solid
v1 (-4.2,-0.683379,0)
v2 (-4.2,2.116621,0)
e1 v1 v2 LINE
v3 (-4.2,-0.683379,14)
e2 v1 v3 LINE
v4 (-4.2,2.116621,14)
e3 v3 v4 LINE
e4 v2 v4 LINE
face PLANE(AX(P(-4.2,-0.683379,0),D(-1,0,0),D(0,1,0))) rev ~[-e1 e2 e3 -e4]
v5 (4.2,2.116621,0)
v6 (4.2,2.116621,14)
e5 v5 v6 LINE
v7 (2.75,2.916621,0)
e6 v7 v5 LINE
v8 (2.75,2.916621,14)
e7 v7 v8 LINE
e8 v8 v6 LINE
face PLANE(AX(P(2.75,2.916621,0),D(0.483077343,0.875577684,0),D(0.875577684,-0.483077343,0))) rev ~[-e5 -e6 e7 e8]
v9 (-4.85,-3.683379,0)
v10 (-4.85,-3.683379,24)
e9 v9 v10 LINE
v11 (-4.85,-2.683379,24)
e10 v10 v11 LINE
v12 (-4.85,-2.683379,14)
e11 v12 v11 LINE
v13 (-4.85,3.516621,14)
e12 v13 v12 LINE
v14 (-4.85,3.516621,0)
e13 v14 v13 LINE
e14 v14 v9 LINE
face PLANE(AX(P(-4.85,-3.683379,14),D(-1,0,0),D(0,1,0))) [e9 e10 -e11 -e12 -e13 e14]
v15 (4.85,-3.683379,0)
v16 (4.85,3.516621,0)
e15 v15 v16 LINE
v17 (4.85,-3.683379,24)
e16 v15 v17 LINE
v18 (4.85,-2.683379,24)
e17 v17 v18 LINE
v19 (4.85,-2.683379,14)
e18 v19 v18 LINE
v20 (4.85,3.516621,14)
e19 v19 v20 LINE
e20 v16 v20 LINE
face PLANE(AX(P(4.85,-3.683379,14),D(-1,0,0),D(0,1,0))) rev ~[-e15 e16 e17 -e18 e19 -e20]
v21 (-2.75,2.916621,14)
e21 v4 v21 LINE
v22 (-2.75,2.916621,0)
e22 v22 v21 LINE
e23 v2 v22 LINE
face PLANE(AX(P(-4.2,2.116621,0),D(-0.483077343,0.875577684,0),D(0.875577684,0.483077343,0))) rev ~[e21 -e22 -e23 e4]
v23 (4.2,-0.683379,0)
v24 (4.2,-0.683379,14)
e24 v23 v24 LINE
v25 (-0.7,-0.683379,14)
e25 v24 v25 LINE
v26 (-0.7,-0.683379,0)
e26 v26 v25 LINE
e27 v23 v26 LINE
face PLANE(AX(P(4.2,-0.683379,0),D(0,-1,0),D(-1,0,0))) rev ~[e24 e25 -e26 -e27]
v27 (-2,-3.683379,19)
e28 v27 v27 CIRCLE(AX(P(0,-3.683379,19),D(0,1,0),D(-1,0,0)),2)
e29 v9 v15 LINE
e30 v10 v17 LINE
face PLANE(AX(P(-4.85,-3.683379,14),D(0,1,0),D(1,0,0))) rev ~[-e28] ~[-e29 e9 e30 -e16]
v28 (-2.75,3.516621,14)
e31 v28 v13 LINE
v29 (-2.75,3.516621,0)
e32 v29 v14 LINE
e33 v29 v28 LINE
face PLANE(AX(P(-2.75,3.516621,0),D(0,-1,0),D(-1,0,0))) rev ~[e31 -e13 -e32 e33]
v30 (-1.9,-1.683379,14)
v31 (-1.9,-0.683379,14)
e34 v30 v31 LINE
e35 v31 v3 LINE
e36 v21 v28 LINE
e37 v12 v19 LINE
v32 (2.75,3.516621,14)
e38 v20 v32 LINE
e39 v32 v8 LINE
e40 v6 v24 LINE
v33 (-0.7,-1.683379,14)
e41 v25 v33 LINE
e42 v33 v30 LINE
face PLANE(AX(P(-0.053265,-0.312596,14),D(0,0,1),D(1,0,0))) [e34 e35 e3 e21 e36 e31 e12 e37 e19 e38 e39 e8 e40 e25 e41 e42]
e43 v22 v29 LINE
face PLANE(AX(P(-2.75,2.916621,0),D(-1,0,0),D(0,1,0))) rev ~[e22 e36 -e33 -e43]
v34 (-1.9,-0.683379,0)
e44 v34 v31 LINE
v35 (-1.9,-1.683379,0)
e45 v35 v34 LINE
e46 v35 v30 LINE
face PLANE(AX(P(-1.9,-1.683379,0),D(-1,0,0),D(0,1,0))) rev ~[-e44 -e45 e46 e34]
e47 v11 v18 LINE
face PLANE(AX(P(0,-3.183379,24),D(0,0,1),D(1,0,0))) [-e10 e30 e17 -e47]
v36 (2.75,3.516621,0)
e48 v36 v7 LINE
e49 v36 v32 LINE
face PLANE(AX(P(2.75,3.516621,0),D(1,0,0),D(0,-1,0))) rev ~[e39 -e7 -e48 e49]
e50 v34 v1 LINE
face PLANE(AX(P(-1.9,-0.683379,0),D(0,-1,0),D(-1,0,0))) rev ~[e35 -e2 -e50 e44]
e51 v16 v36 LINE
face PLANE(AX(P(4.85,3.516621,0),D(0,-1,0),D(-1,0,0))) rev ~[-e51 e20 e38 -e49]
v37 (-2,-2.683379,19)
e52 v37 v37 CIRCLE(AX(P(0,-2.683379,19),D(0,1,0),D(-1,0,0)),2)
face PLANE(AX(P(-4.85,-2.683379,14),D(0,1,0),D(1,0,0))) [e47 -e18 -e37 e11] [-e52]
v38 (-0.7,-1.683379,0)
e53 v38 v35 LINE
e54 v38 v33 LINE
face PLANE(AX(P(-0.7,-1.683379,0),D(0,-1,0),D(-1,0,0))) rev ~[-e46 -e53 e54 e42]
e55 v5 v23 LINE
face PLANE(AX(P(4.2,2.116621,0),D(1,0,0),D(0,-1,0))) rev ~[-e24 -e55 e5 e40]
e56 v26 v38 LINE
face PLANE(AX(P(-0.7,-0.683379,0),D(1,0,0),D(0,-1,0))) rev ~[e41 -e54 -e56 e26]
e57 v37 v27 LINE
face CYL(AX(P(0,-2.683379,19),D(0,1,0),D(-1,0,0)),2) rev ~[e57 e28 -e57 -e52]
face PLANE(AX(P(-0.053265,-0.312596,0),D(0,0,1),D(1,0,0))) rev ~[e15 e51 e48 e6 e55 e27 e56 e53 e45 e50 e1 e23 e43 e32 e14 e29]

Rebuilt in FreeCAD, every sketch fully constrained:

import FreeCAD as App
import Part
import Sketcher

V = App.Vector

doc = App.newDocument("Part")
body = doc.addObject("PartDesign::Body", "Body")

# Sketch on XY plane
sketch1 = body.newObject("Sketcher::SketchObject", "Sketch")
sketch1.AttachmentSupport = (doc.getObject("XY_Plane"), [""])
sketch1.MapMode = "FlatFace"
sketch1.addGeometry(Part.LineSegment(V(-2.8, 3.5, 0), V(-4.8, 3.5, 0)), False)
sketch1.addGeometry(Part.LineSegment(V(-4.8, 3.5, 0), V(-4.8, -3.7, 0)), False)
sketch1.addGeometry(Part.LineSegment(V(-4.8, -3.7, 0), V(4.8, -3.7, 0)), False)
sketch1.addGeometry(Part.LineSegment(V(4.8, -3.7, 0), V(4.8, 3.5, 0)), False)
sketch1.addGeometry(Part.LineSegment(V(4.8, 3.5, 0), V(2.8, 3.5, 0)), False)
sketch1.addGeometry(Part.LineSegment(V(2.8, 3.5, 0), V(2.8, 2.9, 0)), False)
sketch1.addGeometry(Part.LineSegment(V(2.8, 2.9, 0), V(4.2, 2.1, 0)), False)
sketch1.addGeometry(Part.LineSegment(V(4.2, 2.1, 0), V(4.2, -0.7, 0)), False)
sketch1.addGeometry(Part.LineSegment(V(4.2, -0.7, 0), V(-0.7, -0.7, 0)), False)
sketch1.addGeometry(Part.LineSegment(V(-0.7, -0.7, 0), V(-0.7, -1.7, 0)), False)
sketch1.addGeometry(Part.LineSegment(V(-0.7, -1.7, 0), V(-1.9, -1.7, 0)), False)
sketch1.addGeometry(Part.LineSegment(V(-1.9, -1.7, 0), V(-1.9, -0.7, 0)), False)
sketch1.addGeometry(Part.LineSegment(V(-1.9, -0.7, 0), V(-4.2, -0.7, 0)), False)
sketch1.addGeometry(Part.LineSegment(V(-4.2, -0.7, 0), V(-4.2, 2.1, 0)), False)
sketch1.addGeometry(Part.LineSegment(V(-4.2, 2.1, 0), V(-2.8, 2.9, 0)), False)
sketch1.addGeometry(Part.LineSegment(V(-2.8, 2.9, 0), V(-2.8, 3.5, 0)), False)
sketch1.addConstraint(Sketcher.Constraint("Coincident", 0, 2, 1, 1))
sketch1.addConstraint(Sketcher.Constraint("Coincident", 1, 2, 2, 1))
sketch1.addConstraint(Sketcher.Constraint("Coincident", 2, 2, 3, 1))
sketch1.addConstraint(Sketcher.Constraint("Coincident", 3, 2, 4, 1))
sketch1.addConstraint(Sketcher.Constraint("Coincident", 4, 2, 5, 1))
sketch1.addConstraint(Sketcher.Constraint("Coincident", 5, 2, 6, 1))
sketch1.addConstraint(Sketcher.Constraint("Coincident", 6, 2, 7, 1))
sketch1.addConstraint(Sketcher.Constraint("Coincident", 7, 2, 8, 1))
sketch1.addConstraint(Sketcher.Constraint("Coincident", 8, 2, 9, 1))
sketch1.addConstraint(Sketcher.Constraint("Coincident", 9, 2, 10, 1))
sketch1.addConstraint(Sketcher.Constraint("Coincident", 10, 2, 11, 1))
sketch1.addConstraint(Sketcher.Constraint("Coincident", 11, 2, 12, 1))
sketch1.addConstraint(Sketcher.Constraint("Coincident", 12, 2, 13, 1))
sketch1.addConstraint(Sketcher.Constraint("Coincident", 13, 2, 14, 1))
sketch1.addConstraint(Sketcher.Constraint("Coincident", 14, 2, 15, 1))
sketch1.addConstraint(Sketcher.Constraint("Coincident", 15, 2, 0, 1))
sketch1.addConstraint(Sketcher.Constraint("Horizontal", 0))
sketch1.addConstraint(Sketcher.Constraint("Vertical", 1))
sketch1.addConstraint(Sketcher.Constraint("Horizontal", 2))
sketch1.addConstraint(Sketcher.Constraint("Vertical", 3))
sketch1.addConstraint(Sketcher.Constraint("Horizontal", 4))
sketch1.addConstraint(Sketcher.Constraint("Vertical", 5))
sketch1.addConstraint(Sketcher.Constraint("Vertical", 7))
sketch1.addConstraint(Sketcher.Constraint("Horizontal", 8))
sketch1.addConstraint(Sketcher.Constraint("Vertical", 9))
sketch1.addConstraint(Sketcher.Constraint("Horizontal", 10))
sketch1.addConstraint(Sketcher.Constraint("Vertical", 11))
sketch1.addConstraint(Sketcher.Constraint("Horizontal", 12))
sketch1.addConstraint(Sketcher.Constraint("Vertical", 13))
sketch1.addConstraint(Sketcher.Constraint("Vertical", 15))
sketch1.addConstraint(Sketcher.Constraint("Symmetric", 0, 2, 3, 2, -2))
sketch1.addConstraint(Sketcher.Constraint("Symmetric", 7, 2, 12, 2, -2))
sketch1.addConstraint(Sketcher.Constraint("Symmetric", 5, 2, 14, 2, -2))
sketch1.addConstraint(Sketcher.Constraint("Horizontal", 6, 2, 13, 2))
sketch1.addConstraint(Sketcher.Constraint("DistanceY", 9, 2, 9, 1, 1.0))
sketch1.addConstraint(Sketcher.Constraint("DistanceX", 0, 2, 0, 1, 2.1))
sketch1.addConstraint(Sketcher.Constraint("DistanceX", 2, 1, 2, 2, 9.7))
sketch1.addConstraint(Sketcher.Constraint("DistanceX", 8, 2, 8, 1, 4.9))
sketch1.addConstraint(Sketcher.Constraint("DistanceX", 10, 2, 10, 1, 1.2))
sketch1.addConstraint(Sketcher.Constraint("DistanceX", 12, 2, 12, 1, 2.3))
sketch1.addConstraint(Sketcher.Constraint("DistanceY", 1, 2, 1, 1, 7.2))
sketch1.addConstraint(Sketcher.Constraint("DistanceY", 5, 2, 5, 1, 0.6))
sketch1.addConstraint(Sketcher.Constraint("DistanceY", 7, 2, 7, 1, 2.8))
sketch1.addConstraint(Sketcher.Constraint("DistanceY", 2, 2, 7, 2, 3.0))
sketch1.addConstraint(Sketcher.Constraint("DistanceY", -1, 1, 0, 2, 3.516621))
pad1 = body.newObject("PartDesign::Pad", "Pad")
pad1.Profile = sketch1
pad1.Length = 14

# Sketch on XY plane
sketch2 = body.newObject("Sketcher::SketchObject", "Sketch001")
sketch2.AttachmentSupport = (doc.getObject("XY_Plane"), [""])
sketch2.MapMode = "FlatFace"
sketch2.AttachmentOffset = App.Placement(V(0, 0, 14), App.Rotation())
sketch2.addGeometry(Part.LineSegment(V(-4.8, -2.7, 0), V(-4.8, -3.7, 0)), False)
sketch2.addGeometry(Part.LineSegment(V(-4.8, -3.7, 0), V(4.8, -3.7, 0)), False)
sketch2.addGeometry(Part.LineSegment(V(4.8, -3.7, 0), V(4.8, -2.7, 0)), False)
sketch2.addGeometry(Part.LineSegment(V(4.8, -2.7, 0), V(-4.8, -2.7, 0)), False)
sketch2.addConstraint(Sketcher.Constraint("Coincident", 0, 2, 1, 1))
sketch2.addConstraint(Sketcher.Constraint("Coincident", 1, 2, 2, 1))
sketch2.addConstraint(Sketcher.Constraint("Coincident", 2, 2, 3, 1))
sketch2.addConstraint(Sketcher.Constraint("Coincident", 3, 2, 0, 1))
sketch2.addConstraint(Sketcher.Constraint("Vertical", 0))
sketch2.addConstraint(Sketcher.Constraint("Horizontal", 1))
sketch2.addConstraint(Sketcher.Constraint("Vertical", 2))
sketch2.addConstraint(Sketcher.Constraint("Horizontal", 3))
sketch2.addConstraint(Sketcher.Constraint("DistanceY", 0, 2, 0, 1, 1.0))
sketch2.addConstraint(Sketcher.Constraint("DistanceX", 1, 1, 1, 2, 9.7))
sketch2.addConstraint(Sketcher.Constraint("DistanceX", 0, 2, -1, 1, 4.85))
sketch2.addConstraint(Sketcher.Constraint("DistanceY", 0, 2, -1, 1, 3.683379))
pad2 = body.newObject("PartDesign::Pad", "Pad001")
pad2.Profile = sketch2
pad2.Length = 10

# Sketch on XZ plane
sketch3 = body.newObject("Sketcher::SketchObject", "Sketch002")
sketch3.AttachmentSupport = (doc.getObject("XZ_Plane"), [""])
sketch3.MapMode = "FlatFace"
sketch3.AttachmentOffset = App.Placement(V(0, 0, 2.683379), App.Rotation())
sketch3.addGeometry(Part.Circle(V(0, 19, 0), V(0, 0, 1), 2), False)
sketch3.addConstraint(Sketcher.Constraint("PointOnObject", 0, 3, -2))
sketch3.addConstraint(Sketcher.Constraint("Diameter", 0, 4.0))
sketch3.addConstraint(Sketcher.Constraint("DistanceY", -1, 1, 0, 3, 19.0))
pocket1 = body.newObject("PartDesign::Pocket", "Pocket")
pocket1.Profile = sketch3
pocket1.Length = 5
pocket1.Reversed = True

doc.recompute()
